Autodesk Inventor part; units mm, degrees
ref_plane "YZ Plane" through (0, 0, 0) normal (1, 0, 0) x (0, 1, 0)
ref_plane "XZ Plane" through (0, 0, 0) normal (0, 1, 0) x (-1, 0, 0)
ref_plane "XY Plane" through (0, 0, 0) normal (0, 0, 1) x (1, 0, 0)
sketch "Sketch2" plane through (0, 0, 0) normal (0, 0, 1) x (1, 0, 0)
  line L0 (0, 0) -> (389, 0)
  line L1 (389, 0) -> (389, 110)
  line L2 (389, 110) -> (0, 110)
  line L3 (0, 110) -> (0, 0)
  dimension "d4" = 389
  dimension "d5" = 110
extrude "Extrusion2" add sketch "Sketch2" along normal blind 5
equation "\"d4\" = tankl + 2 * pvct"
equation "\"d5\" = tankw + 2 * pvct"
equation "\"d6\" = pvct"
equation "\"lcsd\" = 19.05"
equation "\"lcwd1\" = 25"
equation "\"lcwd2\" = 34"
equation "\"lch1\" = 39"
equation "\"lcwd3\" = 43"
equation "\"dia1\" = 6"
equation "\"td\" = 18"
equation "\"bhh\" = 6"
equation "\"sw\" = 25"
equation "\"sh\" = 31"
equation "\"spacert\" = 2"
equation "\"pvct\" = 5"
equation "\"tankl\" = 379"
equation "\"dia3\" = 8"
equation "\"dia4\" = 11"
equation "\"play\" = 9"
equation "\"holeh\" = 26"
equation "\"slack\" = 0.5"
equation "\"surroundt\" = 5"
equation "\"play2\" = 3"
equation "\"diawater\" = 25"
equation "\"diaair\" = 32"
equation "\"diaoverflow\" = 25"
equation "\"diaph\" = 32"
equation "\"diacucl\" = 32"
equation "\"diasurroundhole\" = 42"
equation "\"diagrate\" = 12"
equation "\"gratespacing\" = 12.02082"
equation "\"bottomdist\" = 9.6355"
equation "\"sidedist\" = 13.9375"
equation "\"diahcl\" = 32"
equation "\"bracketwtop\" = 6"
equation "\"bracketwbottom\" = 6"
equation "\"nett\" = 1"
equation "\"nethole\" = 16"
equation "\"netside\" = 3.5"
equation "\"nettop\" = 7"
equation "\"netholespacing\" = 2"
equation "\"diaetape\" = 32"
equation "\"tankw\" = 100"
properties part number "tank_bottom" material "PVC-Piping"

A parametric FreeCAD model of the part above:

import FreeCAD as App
import Part
import Sketcher
from FreeCAD import Vector
Q = App.Units.Quantity

doc = App.newDocument("Part")
body = doc.addObject("PartDesign::Body", "Body")

# Sketch on XY plane
sketch1 = body.newObject("Sketcher::SketchObject", "Sketch")
sketch1.AttachmentSupport = (doc.getObject("XY_Plane"), [""])
sketch1.MapMode = "FlatFace"
sketch1.addGeometry([
    Part.LineSegment(Vector(0, 110, 0), Vector(0, 0, 0)),
    Part.LineSegment(Vector(0, 0, 0), Vector(389, 0, 0)),
    Part.LineSegment(Vector(389, 0, 0), Vector(389, 110, 0)),
    Part.LineSegment(Vector(389, 110, 0), Vector(0, 110, 0)),
], False)
sketch1.addConstraint([
    Sketcher.Constraint("Coincident", 0, 2, 1, 1),
    Sketcher.Constraint("Coincident", 1, 2, 2, 1),
    Sketcher.Constraint("Coincident", 2, 2, 3, 1),
    Sketcher.Constraint("Coincident", 3, 2, 0, 1),
    Sketcher.Constraint("Vertical", 0),
    Sketcher.Constraint("Horizontal", 1),
    Sketcher.Constraint("Vertical", 2),
    Sketcher.Constraint("Horizontal", 3),
    Sketcher.Constraint("Coincident", 0, 2, -1, 1),
    Sketcher.Constraint("DistanceX", 1, 1, 1, 2, Q("389 mm")),
    Sketcher.Constraint("DistanceY", 0, 2, 0, 1, Q("110 mm")),
])
pad1 = body.newObject("PartDesign::Pad", "Pad")
pad1.Profile = sketch1
pad1.Length = 5

doc.recompute()
